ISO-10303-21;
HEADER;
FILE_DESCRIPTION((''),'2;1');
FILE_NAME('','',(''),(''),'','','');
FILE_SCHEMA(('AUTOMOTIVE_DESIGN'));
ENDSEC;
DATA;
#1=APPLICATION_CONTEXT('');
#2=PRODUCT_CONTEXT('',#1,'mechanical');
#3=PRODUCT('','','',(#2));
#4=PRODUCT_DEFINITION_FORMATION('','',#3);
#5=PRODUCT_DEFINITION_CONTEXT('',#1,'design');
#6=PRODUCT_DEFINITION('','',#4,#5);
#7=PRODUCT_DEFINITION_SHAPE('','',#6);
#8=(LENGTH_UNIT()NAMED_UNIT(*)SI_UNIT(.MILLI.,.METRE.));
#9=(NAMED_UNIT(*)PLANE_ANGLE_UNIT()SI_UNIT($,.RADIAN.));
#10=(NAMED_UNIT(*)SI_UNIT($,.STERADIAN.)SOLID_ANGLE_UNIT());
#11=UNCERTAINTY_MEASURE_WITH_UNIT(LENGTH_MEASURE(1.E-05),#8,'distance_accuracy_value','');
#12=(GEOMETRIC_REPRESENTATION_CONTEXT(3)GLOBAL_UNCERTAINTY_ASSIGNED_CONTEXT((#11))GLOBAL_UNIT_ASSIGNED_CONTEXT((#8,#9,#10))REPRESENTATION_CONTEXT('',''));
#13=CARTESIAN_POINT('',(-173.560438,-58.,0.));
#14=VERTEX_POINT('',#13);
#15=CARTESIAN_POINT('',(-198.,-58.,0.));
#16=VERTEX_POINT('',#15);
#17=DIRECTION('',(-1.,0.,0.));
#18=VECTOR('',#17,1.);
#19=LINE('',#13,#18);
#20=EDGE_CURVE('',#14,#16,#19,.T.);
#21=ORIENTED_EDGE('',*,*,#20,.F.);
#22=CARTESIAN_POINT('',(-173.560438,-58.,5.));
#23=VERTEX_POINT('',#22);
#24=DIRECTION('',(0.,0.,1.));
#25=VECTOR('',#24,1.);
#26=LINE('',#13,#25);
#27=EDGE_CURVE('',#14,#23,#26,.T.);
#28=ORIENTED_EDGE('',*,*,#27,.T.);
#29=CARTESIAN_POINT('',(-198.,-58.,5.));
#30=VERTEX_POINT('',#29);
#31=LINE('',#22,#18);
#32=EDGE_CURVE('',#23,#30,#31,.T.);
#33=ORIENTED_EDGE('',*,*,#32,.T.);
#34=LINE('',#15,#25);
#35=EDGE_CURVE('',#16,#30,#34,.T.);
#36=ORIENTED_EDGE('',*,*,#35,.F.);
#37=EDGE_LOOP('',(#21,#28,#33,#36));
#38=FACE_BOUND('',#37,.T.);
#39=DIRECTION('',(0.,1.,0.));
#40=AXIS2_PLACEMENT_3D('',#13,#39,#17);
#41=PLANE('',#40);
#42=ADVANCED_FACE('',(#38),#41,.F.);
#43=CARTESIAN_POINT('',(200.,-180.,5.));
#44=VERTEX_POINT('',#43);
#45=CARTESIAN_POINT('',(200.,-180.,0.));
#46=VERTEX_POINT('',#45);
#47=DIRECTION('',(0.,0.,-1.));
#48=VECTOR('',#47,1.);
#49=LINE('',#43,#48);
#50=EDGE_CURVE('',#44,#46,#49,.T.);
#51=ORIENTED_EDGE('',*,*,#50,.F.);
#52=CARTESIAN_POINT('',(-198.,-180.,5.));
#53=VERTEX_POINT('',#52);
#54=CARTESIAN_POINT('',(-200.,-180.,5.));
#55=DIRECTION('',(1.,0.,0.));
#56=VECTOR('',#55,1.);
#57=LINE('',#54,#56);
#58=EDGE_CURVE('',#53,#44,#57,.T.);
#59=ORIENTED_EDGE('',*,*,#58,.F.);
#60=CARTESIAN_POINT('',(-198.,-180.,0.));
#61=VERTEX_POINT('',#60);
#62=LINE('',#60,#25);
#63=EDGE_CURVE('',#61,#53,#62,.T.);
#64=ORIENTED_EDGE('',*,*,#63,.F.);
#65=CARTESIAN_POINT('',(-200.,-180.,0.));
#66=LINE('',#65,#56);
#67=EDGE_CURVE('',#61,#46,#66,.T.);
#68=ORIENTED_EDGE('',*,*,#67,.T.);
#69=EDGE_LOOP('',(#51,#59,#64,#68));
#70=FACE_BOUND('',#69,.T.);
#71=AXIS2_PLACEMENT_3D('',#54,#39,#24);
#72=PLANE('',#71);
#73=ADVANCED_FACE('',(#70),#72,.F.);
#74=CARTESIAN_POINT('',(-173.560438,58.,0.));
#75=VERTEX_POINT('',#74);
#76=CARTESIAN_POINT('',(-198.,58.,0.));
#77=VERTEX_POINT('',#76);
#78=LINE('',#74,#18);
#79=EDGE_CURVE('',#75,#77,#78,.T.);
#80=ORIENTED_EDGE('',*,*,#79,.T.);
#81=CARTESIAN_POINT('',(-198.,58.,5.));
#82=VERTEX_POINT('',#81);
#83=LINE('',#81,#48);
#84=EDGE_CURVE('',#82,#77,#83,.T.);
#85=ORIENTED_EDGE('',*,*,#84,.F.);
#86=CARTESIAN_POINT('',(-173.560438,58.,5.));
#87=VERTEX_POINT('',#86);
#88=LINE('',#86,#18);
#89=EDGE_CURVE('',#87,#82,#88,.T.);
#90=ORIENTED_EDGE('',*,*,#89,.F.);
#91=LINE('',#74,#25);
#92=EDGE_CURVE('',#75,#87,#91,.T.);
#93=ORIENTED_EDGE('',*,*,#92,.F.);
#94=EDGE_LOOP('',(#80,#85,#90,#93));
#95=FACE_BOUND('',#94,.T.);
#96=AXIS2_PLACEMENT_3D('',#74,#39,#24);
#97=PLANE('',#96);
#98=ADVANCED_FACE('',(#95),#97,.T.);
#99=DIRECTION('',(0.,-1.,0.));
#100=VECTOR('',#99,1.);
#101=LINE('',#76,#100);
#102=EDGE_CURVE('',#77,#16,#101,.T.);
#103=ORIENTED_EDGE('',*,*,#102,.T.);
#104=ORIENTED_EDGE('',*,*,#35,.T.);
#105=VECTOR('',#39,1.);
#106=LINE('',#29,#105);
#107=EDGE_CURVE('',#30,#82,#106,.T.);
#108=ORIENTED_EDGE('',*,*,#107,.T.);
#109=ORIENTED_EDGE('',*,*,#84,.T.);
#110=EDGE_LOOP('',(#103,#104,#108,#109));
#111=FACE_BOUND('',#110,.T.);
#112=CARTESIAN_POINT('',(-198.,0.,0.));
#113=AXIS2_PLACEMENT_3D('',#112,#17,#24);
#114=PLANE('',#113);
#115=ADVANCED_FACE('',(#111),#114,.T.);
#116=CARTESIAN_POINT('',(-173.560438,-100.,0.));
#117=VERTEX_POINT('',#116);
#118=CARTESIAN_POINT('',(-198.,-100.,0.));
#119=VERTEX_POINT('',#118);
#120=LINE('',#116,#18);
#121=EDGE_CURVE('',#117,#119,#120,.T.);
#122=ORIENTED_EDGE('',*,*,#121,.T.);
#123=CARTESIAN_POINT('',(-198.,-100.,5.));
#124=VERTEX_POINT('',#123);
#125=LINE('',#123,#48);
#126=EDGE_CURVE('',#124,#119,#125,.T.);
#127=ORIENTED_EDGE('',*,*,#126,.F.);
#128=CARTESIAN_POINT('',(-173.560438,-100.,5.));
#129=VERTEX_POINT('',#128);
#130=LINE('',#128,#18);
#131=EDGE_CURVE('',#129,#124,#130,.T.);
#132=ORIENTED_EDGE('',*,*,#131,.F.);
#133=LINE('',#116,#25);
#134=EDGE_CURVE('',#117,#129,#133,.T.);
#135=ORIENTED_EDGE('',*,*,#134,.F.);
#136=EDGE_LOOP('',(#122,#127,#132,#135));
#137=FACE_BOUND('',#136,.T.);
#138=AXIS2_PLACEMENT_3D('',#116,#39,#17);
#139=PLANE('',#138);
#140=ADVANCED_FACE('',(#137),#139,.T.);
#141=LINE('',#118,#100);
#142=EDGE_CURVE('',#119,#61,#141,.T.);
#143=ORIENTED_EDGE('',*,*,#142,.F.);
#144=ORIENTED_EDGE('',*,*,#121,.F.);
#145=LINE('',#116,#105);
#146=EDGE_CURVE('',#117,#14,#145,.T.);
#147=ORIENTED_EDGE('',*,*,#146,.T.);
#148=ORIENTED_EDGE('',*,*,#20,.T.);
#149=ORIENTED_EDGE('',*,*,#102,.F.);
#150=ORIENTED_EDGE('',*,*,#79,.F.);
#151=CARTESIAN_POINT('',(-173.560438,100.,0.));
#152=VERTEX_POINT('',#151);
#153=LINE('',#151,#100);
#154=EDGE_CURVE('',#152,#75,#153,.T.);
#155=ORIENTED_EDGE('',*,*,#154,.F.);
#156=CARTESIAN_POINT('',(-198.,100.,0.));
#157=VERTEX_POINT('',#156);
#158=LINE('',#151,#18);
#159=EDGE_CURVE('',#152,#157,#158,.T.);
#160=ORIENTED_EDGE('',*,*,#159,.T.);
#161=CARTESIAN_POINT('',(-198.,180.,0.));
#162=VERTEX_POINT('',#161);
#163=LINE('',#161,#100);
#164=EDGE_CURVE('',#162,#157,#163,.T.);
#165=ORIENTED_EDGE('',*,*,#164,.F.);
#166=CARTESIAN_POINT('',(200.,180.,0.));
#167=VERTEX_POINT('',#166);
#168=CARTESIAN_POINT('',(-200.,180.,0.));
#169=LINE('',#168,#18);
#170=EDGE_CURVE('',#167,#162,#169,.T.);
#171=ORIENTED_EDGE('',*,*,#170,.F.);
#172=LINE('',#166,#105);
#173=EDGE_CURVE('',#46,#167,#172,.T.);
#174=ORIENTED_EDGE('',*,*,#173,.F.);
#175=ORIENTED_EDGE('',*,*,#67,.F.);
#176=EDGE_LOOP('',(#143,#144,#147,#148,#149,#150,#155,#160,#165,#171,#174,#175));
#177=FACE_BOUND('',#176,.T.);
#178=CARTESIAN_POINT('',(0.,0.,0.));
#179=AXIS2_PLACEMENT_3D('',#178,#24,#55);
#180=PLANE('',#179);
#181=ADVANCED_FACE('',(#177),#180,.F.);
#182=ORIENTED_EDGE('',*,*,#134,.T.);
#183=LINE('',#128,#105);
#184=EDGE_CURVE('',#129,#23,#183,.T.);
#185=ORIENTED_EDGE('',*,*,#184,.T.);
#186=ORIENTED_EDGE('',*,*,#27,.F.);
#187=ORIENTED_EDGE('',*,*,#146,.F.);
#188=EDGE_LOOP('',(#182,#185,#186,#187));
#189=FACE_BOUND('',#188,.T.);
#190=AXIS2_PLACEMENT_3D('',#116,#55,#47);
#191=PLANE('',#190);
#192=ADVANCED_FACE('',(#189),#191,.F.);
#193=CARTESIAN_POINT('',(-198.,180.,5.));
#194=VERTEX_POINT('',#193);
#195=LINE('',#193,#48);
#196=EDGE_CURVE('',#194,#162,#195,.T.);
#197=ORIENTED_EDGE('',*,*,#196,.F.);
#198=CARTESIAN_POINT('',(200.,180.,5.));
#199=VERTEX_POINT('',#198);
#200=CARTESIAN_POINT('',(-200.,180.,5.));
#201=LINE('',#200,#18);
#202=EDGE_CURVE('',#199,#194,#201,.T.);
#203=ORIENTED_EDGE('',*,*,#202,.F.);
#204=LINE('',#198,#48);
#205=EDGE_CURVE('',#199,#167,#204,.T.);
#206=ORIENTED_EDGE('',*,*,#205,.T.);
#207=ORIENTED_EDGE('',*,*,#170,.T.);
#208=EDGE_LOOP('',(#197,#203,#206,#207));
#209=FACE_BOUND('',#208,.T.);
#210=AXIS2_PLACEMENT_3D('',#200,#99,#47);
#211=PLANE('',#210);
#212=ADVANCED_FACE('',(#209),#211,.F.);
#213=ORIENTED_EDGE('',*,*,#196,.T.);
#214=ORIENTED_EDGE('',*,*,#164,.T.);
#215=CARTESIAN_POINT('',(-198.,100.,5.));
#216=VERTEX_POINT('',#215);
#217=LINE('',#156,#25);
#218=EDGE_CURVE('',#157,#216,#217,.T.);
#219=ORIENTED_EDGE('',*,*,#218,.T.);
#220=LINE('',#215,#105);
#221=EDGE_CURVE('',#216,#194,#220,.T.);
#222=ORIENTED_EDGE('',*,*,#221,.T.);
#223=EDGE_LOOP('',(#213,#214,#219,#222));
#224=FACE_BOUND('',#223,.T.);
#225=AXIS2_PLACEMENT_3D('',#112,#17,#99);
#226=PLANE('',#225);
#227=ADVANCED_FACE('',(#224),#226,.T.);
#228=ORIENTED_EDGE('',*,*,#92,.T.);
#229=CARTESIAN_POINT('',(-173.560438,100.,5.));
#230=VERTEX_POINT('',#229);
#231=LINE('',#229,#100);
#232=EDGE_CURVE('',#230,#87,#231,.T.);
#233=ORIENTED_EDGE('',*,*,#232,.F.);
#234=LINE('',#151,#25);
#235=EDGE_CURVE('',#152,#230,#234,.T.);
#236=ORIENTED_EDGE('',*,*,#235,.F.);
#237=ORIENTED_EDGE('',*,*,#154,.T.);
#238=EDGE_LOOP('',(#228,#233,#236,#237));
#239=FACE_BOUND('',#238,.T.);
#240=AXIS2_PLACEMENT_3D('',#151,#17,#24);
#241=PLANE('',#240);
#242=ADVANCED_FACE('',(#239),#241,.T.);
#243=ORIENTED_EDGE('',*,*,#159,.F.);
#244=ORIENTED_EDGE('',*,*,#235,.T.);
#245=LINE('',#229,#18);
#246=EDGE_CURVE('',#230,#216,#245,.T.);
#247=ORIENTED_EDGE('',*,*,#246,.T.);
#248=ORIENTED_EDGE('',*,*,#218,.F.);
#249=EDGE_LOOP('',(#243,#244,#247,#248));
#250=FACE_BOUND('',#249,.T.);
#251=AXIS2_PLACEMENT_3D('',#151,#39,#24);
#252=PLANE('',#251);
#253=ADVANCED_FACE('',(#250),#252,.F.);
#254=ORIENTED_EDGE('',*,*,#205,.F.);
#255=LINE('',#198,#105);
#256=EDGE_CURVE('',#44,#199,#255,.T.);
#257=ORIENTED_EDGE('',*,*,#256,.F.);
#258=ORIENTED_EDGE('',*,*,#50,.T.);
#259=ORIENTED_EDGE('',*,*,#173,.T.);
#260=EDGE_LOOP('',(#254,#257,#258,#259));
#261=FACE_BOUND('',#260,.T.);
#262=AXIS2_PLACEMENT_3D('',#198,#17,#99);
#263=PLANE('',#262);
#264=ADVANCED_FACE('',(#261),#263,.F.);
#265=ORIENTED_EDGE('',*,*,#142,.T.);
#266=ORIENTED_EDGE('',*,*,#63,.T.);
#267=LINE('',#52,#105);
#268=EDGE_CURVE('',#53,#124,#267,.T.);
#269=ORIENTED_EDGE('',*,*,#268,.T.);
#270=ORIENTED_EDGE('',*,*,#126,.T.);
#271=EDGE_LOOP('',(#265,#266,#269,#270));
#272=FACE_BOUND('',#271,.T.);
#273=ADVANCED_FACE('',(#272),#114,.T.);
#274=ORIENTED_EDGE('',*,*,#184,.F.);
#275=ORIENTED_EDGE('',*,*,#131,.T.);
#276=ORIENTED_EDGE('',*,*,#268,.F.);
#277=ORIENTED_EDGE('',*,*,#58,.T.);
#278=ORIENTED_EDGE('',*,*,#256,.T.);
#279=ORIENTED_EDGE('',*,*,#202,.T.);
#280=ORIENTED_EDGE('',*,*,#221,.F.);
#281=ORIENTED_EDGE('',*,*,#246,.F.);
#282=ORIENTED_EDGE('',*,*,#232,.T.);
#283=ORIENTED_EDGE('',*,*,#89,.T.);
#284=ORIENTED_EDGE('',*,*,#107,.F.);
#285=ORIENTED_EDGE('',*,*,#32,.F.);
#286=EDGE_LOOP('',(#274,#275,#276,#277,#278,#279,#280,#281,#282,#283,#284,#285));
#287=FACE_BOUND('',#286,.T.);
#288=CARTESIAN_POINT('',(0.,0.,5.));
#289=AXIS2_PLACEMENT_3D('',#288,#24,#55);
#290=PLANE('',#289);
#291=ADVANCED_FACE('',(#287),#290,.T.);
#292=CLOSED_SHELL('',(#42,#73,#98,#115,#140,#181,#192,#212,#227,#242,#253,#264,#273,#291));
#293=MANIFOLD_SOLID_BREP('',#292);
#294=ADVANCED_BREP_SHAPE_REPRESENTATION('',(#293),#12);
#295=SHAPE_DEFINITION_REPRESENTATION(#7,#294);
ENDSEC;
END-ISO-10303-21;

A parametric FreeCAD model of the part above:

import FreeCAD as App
import Part
import Sketcher

V = App.Vector


def add_polygon(sketch, points):
    """Adds a closed chain of lines whose ends are joined by coincident constraints."""
    first, n = sketch.GeometryCount, len(points)
    for a, b in zip(points, points[1:] + points[:1]):
        sketch.addGeometry(Part.LineSegment(App.Vector(*a, 0), App.Vector(*b, 0)), False)
    for i in range(n):
        sketch.addConstraint(Sketcher.Constraint("Coincident", first + i, 2, first + (i + 1) % n, 1))

doc = App.newDocument("Part")
body = doc.addObject("PartDesign::Body", "Body")

# Sketch on XY plane
sketch1 = body.newObject("Sketcher::SketchObject", "Sketch")
sketch1.AttachmentSupport = (doc.getObject("XY_Plane"), [""])
sketch1.MapMode = "FlatFace"
add_polygon(sketch1, [(-200, 180), (-200, -180), (200, -180), (200, 180)])  # lines 0-3
sketch1.addConstraint([
    Sketcher.Constraint("Vertical", 0),
    Sketcher.Constraint("Horizontal", 1),
    Sketcher.Constraint("Vertical", 2),
    Sketcher.Constraint("Horizontal", 3),
    Sketcher.Constraint("Symmetric", 0, 2, 2, 2, -1, 1),
    Sketcher.Constraint("DistanceX", 1, 1, 1, 2, 400.0),
    Sketcher.Constraint("DistanceY", 0, 2, 0, 1, 360.0),
])
pad1 = body.newObject("PartDesign::Pad", "Pad")
pad1.Profile = sketch1
pad1.Length = 5

# Sketch on XY plane
sketch2 = body.newObject("Sketcher::SketchObject", "Sketch001")
sketch2.AttachmentSupport = (doc.getObject("XY_Plane"), [""])
sketch2.MapMode = "FlatFace"
sketch2.AttachmentOffset = App.Placement(V(0, 0, 5), App.Rotation())
add_polygon(sketch2, [(-200, 100), (-200, 58), (-173.560438, 58), (-173.560438, 100)])  # lines 0-3
add_polygon(sketch2, [(-200, -58), (-200, -100), (-173.560438, -100), (-173.560438, -58)])  # lines 4-7
sketch2.addConstraint([
    Sketcher.Constraint("Vertical", 0),
    Sketcher.Constraint("Horizontal", 1),
    Sketcher.Constraint("Vertical", 2),
    Sketcher.Constraint("Horizontal", 3),
    Sketcher.Constraint("Vertical", 4),
    Sketcher.Constraint("Horizontal", 5),
    Sketcher.Constraint("Vertical", 6),
    Sketcher.Constraint("Horizontal", 7),
    Sketcher.Constraint("Symmetric", 3, 2, 4, 2, -1),
    Sketcher.Constraint("Symmetric", 1, 2, 6, 2, -1),
    Sketcher.Constraint("DistanceY", 0, 2, 0, 1, 42.0),
    Sketcher.Constraint("DistanceX", 0, 2, -1, 1, 200.0),
    Sketcher.Constraint("DistanceY", -1, 1, 0, 2, 58.0),
    Sketcher.Constraint("DistanceX", 1, 1, 1, 2, 26.439562),
])
pocket1 = body.newObject("PartDesign::Pocket", "Pocket")
pocket1.Profile = sketch2
pocket1.Length = 5

# Sketch on YZ plane
sketch3 = body.newObject("Sketcher::SketchObject", "Sketch002")
sketch3.AttachmentSupport = (doc.getObject("YZ_Plane"), [""])
sketch3.MapMode = "FlatFace"
sketch3.AttachmentOffset = App.Placement(V(0, 0, -200), App.Rotation())
add_polygon(sketch3, [(58, 0), (-58, 0), (-58, 5), (58, 5)])  # lines 0-3
add_polygon(sketch3, [(180, 0), (100, 0), (100, 5), (180, 5)])  # lines 4-7
add_polygon(sketch3, [(-100, 0), (-180, 0), (-180, 5), (-100, 5)])  # lines 8-11
sketch3.addConstraint([
    Sketcher.Constraint("Horizontal", 0),
    Sketcher.Constraint("Vertical", 1),
    Sketcher.Constraint("Horizontal", 2),
    Sketcher.Constraint("Vertical", 3),
    Sketcher.Constraint("Horizontal", 4),
    Sketcher.Constraint("Vertical", 5),
    Sketcher.Constraint("Horizontal", 6),
    Sketcher.Constraint("Vertical", 7),
    Sketcher.Constraint("Horizontal", 8),
    Sketcher.Constraint("Vertical", 9),
    Sketcher.Constraint("Horizontal", 10),
    Sketcher.Constraint("Vertical", 11),
    Sketcher.Constraint("Symmetric", 0, 2, 3, 2, -1, 1),
    Sketcher.Constraint("Symmetric", 7, 2, 8, 2, -1, 1),
    Sketcher.Constraint("Symmetric", 5, 2, 10, 2, -2),
    Sketcher.Constraint("PointOnObject", 4, 2, -1),
    Sketcher.Constraint("Horizontal", 2, 2, 5, 2),
    Sketcher.Constraint("DistanceX", 0, 2, 0, 1, 116.0),
    Sketcher.Constraint("DistanceX", 4, 2, 4, 1, 80.0),
    Sketcher.Constraint("DistanceY", 1, 1, 1, 2, 5.0),
    Sketcher.Constraint("DistanceX", -1, 1, 4, 2, 100.0),
])
pocket2 = body.newObject("PartDesign::Pocket", "Pocket001")
pocket2.Profile = sketch3
pocket2.Length = 2
pocket2.Reversed = True

doc.recompute()
